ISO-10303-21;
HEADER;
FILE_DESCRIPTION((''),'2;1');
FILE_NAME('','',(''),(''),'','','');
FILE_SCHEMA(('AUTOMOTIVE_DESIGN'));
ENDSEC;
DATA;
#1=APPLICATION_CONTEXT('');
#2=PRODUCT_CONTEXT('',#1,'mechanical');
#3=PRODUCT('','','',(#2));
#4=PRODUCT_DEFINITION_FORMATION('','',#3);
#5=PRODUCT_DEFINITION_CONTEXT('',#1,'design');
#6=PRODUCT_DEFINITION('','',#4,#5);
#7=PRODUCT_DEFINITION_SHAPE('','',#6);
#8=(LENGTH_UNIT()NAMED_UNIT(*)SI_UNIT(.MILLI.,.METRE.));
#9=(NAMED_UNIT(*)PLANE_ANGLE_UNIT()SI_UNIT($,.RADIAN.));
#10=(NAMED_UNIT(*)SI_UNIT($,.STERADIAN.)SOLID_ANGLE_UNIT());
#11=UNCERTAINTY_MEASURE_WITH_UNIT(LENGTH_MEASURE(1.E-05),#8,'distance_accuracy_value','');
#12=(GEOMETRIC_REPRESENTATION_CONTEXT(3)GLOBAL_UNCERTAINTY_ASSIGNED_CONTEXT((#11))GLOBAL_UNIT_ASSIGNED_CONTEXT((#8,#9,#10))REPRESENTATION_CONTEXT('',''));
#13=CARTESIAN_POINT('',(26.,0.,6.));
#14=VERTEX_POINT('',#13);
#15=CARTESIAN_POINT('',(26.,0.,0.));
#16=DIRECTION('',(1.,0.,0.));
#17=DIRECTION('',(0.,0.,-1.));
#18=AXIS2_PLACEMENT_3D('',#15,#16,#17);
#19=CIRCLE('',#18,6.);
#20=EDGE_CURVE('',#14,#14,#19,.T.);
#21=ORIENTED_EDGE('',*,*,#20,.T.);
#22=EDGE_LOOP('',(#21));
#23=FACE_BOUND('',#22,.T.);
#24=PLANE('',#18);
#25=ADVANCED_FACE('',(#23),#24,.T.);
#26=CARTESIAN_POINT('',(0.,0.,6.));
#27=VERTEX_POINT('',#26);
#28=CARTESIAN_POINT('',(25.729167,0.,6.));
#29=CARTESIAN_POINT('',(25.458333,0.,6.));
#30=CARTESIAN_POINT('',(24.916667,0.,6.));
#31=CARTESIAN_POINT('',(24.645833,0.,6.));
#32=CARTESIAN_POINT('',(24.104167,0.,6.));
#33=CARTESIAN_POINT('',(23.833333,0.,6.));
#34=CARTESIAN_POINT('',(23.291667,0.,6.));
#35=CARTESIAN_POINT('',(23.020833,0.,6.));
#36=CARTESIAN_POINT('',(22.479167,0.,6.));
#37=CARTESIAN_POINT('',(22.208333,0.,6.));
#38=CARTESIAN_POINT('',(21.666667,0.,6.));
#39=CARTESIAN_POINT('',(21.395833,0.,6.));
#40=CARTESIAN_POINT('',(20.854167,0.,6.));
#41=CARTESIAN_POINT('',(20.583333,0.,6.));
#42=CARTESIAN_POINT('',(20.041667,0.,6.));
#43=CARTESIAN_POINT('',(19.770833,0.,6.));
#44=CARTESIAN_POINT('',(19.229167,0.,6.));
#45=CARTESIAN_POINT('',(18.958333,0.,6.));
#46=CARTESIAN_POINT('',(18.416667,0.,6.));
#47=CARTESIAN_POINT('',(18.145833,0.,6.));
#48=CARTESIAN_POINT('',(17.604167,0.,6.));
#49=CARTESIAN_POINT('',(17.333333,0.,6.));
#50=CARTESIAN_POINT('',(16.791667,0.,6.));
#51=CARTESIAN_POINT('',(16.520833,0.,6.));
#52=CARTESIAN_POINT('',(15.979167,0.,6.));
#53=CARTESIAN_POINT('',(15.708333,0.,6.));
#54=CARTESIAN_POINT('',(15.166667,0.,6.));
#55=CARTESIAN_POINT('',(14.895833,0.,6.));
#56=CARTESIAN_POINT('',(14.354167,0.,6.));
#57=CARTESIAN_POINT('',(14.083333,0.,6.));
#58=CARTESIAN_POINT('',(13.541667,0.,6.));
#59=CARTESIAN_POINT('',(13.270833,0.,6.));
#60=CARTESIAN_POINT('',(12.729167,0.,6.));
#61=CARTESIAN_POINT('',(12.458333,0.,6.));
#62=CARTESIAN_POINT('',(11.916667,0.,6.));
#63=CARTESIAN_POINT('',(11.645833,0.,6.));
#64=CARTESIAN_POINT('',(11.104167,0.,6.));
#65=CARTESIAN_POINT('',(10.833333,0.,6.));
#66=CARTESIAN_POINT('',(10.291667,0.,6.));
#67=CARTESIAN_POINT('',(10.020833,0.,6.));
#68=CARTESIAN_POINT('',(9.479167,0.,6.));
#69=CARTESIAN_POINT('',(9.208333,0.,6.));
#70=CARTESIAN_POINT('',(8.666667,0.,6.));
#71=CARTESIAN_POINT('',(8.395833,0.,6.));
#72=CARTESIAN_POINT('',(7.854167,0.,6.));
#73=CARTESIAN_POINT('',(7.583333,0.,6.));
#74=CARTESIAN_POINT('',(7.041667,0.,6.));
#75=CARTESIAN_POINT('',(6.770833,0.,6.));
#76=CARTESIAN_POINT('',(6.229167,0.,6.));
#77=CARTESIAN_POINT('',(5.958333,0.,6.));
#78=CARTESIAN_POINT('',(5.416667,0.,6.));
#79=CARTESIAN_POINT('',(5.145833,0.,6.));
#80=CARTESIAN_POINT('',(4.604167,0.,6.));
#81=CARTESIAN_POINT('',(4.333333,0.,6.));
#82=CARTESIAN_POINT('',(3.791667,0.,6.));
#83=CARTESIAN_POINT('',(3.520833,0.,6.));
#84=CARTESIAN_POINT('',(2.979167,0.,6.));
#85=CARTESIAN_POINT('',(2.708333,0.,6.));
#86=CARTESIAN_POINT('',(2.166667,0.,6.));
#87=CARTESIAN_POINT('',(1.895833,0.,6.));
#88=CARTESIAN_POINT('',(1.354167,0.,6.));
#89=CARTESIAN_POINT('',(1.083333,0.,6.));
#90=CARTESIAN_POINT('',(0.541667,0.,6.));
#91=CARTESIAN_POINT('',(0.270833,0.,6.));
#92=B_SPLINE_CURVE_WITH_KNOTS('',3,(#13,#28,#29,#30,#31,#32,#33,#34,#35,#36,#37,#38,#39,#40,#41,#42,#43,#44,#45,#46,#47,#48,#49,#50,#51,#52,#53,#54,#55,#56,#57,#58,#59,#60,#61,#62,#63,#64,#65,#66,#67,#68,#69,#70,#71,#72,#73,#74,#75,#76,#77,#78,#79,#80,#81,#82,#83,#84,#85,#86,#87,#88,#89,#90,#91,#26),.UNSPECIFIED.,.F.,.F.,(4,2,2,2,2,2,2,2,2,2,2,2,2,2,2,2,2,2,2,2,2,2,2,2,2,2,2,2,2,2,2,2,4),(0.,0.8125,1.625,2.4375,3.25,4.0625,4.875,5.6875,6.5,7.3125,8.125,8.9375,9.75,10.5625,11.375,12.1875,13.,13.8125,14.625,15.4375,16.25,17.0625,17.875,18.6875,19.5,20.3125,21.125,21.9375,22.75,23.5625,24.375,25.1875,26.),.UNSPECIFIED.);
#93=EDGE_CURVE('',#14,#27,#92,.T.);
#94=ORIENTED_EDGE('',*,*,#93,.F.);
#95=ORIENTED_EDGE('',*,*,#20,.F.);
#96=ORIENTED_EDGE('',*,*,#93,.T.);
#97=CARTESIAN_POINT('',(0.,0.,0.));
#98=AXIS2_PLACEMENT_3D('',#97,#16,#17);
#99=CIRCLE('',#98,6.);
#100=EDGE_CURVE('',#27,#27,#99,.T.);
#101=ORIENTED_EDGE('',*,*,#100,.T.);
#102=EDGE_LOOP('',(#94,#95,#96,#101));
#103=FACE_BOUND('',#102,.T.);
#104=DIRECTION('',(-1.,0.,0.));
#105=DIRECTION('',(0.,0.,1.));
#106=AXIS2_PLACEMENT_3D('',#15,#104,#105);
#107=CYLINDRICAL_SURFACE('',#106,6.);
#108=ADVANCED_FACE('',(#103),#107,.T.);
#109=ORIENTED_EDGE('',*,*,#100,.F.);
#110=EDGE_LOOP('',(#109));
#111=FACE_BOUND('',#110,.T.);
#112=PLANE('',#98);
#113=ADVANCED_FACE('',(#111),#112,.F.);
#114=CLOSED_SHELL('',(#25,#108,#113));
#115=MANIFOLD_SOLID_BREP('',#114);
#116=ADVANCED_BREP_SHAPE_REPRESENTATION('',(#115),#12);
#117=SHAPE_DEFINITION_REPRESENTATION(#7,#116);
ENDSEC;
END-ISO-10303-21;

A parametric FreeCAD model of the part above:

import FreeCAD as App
import Part
import Sketcher

V = App.Vector
Q = App.Units.Quantity

doc = App.newDocument("Part")
params = doc.addObject("Spreadsheet::Sheet", "Params")
for row, (alias, value) in enumerate([
    ("sketch1_diameter", "12 mm"),
    ("pad1_length", "26 mm"),
], start=1):
    params.set(f"A{row}", alias)
    params.set(f"B{row}", "=" + value)
    params.setAlias(f"B{row}", alias)

body = doc.addObject("PartDesign::Body", "Body")

sketch1 = doc.addObject("Sketcher::SketchObject", "Sketch")
body.addObject(sketch1)
sketch1.AttachmentSupport = (doc.YZ_Plane, [""])
sketch1.MapMode = "FlatFace"
sketch1.addGeometry(Part.Circle(V(0, 0, 0), V(0, 0, 1), 6), False)
sketch1.addConstraint([
    Sketcher.Constraint("Coincident", 0, 3, -1, 1),
    Sketcher.Constraint("Diameter", 0, Q("12 mm")),
])
sketch1.setExpression("Constraints[1]", "Params.sketch1_diameter")
pad1 = doc.addObject("PartDesign::Pad", "Pad")
body.addObject(pad1)
pad1.Profile = sketch1
pad1.setExpression("Length", "Params.pad1_length")

doc.recompute()
